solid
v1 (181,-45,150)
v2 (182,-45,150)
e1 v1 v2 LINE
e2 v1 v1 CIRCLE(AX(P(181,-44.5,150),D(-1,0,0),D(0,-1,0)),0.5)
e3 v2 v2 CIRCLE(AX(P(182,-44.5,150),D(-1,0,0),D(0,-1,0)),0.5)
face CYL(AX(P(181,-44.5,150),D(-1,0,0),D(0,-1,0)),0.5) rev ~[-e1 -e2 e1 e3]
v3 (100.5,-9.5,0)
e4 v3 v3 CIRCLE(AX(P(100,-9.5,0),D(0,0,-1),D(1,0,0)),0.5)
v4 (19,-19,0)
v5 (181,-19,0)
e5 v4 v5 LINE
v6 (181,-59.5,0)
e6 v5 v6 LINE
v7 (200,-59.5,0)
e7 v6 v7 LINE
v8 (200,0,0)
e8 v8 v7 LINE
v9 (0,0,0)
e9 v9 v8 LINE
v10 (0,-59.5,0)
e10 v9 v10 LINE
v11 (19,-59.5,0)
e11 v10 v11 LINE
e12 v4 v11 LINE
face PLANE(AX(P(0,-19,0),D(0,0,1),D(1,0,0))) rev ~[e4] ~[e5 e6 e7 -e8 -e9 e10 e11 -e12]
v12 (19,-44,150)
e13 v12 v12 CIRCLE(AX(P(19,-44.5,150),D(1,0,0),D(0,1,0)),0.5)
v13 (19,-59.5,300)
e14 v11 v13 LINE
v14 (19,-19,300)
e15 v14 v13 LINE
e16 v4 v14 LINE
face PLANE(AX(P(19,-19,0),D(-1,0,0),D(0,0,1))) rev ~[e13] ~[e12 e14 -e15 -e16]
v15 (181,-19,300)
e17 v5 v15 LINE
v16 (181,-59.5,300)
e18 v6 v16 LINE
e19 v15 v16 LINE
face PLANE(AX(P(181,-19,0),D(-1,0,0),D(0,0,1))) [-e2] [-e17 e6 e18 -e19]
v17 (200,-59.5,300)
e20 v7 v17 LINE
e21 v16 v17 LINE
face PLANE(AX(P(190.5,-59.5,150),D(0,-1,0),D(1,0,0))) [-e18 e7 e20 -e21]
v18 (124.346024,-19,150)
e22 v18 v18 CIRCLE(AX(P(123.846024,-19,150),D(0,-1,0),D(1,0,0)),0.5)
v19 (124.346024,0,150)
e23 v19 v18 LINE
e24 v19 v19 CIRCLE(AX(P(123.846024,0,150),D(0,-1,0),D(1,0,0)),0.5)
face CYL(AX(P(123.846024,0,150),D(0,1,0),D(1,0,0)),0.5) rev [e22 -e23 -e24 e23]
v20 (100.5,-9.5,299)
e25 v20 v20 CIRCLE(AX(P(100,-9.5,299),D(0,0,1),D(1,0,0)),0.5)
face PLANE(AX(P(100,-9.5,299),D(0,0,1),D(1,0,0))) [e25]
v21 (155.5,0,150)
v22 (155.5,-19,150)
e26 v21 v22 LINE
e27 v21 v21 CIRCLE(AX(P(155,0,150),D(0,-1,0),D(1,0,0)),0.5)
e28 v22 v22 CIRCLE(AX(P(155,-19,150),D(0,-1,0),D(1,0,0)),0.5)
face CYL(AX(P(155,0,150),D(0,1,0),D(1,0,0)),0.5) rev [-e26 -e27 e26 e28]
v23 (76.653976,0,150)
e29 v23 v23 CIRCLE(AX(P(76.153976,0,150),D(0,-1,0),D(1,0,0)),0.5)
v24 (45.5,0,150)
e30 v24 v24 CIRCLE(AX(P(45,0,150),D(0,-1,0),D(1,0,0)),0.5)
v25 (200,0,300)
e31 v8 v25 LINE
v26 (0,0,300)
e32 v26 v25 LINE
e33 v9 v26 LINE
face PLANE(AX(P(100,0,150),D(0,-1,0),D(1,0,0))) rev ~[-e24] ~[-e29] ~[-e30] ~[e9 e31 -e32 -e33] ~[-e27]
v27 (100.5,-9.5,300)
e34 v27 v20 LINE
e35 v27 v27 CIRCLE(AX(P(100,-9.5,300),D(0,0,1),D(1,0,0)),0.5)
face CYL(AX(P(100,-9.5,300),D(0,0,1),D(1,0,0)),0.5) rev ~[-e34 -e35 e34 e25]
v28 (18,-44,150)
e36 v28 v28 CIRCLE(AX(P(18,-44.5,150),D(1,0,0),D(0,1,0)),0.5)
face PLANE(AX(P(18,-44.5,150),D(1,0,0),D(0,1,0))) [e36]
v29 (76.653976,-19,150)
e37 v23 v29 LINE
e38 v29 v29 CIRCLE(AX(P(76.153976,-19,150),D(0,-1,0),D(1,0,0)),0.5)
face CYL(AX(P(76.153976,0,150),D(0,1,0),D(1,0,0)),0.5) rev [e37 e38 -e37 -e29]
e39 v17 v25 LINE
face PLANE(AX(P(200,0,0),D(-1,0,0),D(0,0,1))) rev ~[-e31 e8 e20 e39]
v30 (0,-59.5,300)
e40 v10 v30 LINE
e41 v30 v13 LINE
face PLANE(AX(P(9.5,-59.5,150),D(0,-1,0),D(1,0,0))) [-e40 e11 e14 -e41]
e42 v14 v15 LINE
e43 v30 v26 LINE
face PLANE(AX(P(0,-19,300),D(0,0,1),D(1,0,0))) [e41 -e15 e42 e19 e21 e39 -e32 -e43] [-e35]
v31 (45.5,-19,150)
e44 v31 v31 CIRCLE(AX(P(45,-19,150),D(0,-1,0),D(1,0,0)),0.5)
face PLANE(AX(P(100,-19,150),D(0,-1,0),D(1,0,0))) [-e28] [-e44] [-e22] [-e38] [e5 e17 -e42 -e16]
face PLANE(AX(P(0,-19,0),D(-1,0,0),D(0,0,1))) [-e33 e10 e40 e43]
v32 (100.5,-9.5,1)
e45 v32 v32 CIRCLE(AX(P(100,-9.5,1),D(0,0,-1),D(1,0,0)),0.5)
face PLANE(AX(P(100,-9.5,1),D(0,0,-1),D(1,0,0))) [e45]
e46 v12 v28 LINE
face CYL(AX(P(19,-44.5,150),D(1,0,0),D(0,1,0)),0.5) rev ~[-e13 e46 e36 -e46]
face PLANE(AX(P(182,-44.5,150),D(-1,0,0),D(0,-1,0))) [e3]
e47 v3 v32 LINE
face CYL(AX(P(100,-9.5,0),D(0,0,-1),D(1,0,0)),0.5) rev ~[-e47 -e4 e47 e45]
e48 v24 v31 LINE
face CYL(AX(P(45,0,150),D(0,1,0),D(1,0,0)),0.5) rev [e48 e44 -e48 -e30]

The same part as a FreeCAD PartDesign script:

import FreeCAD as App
import Part
import Sketcher

V = App.Vector
Q = App.Units.Quantity


def add_polygon(sketch, points):
    """Adds a closed chain of lines whose ends are joined by coincident constraints."""
    first, n = sketch.GeometryCount, len(points)
    for a, b in zip(points, points[1:] + points[:1]):
        sketch.addGeometry(Part.LineSegment(App.Vector(*a, 0), App.Vector(*b, 0)), False)
    for i in range(n):
        sketch.addConstraint(Sketcher.Constraint("Coincident", first + i, 2, first + (i + 1) % n, 1))

doc = App.newDocument("Part")
body = doc.addObject("PartDesign::Body", "Body")

sketch1 = body.newObject("Sketcher::SketchObject", "Sketch")
sketch1.AttachmentSupport = (doc.getObject("XZ_Plane"), [""])
sketch1.MapMode = "FlatFace"
add_polygon(sketch1, [(0, 300), (0, 0), (200, 0), (200, 300)])
sketch1.addGeometry(Part.Circle(V(45, 150, 0), V(0, 0, 1), 0.5), False)
sketch1.addGeometry(Part.Circle(V(76.153976, 150, 0), V(0, 0, 1), 0.5), False)
sketch1.addGeometry(Part.Circle(V(123.846024, 150, 0), V(0, 0, 1), 0.5), False)
sketch1.addGeometry(Part.Circle(V(155, 150, 0), V(0, 0, 1), 0.5), False)
sketch1.addConstraint([
    Sketcher.Constraint("Vertical", 0),
    Sketcher.Constraint("Horizontal", 1),
    Sketcher.Constraint("Vertical", 2),
    Sketcher.Constraint("Horizontal", 3),
    Sketcher.Constraint("Coincident", 0, 2, -1, 1),
    Sketcher.Constraint("Equal", 4, 5),
    Sketcher.Constraint("Equal", 5, 6),
    Sketcher.Constraint("Equal", 6, 7),
    Sketcher.Constraint("Horizontal", 4, 3, 5, 3),
    Sketcher.Constraint("Horizontal", 5, 3, 6, 3),
    Sketcher.Constraint("Horizontal", 6, 3, 7, 3),
    Sketcher.Constraint("Diameter", 4, Q("1 mm")),
    Sketcher.Constraint("DistanceX", 1, 1, 1, 2, Q("200 mm")),
    Sketcher.Constraint("DistanceY", 0, 2, 0, 1, Q("300 mm")),
    Sketcher.Constraint("DistanceX", -1, 1, 4, 3, Q("45 mm")),
    Sketcher.Constraint("DistanceY", -1, 1, 4, 3, Q("150 mm")),
    Sketcher.Constraint("DistanceX", -1, 1, 7, 3, Q("155 mm")),
    Sketcher.Constraint("DistanceX", -1, 1, 5, 3, Q("76.153976 mm")),
    Sketcher.Constraint("DistanceX", -1, 1, 6, 3, Q("123.846024 mm")),
])
pad1 = body.newObject("PartDesign::Pad", "Pad")
pad1.Profile = sketch1
pad1.Length = 19

sketch2 = body.newObject("Sketcher::SketchObject", "Sketch001")
sketch2.AttachmentSupport = (doc.getObject("XZ_Plane"), [""])
sketch2.MapMode = "FlatFace"
sketch2.AttachmentOffset = App.Placement(V(0, 0, 19), App.Rotation())
add_polygon(sketch2, [(0, 300), (0, 0), (19, 0), (19, 300)])
add_polygon(sketch2, [(181, 300), (181, 0), (200, 0), (200, 300)])
sketch2.addConstraint([
    Sketcher.Constraint("Vertical", 0),
    Sketcher.Constraint("Horizontal", 1),
    Sketcher.Constraint("Vertical", 2),
    Sketcher.Constraint("Horizontal", 3),
    Sketcher.Constraint("Vertical", 4),
    Sketcher.Constraint("Horizontal", 5),
    Sketcher.Constraint("Vertical", 6),
    Sketcher.Constraint("Horizontal", 7),
    Sketcher.Constraint("Coincident", 0, 2, -1, 1),
    Sketcher.Constraint("PointOnObject", 4, 2, -1),
    Sketcher.Constraint("Horizontal", 3, 2, 6, 2),
    Sketcher.Constraint("Equal", 3, 5),
    Sketcher.Constraint("DistanceX", 1, 1, 1, 2, Q("19 mm")),
    Sketcher.Constraint("DistanceY", 0, 2, 0, 1, Q("300 mm")),
    Sketcher.Constraint("DistanceX", -1, 1, 4, 2, Q("181 mm")),
])
pad2 = body.newObject("PartDesign::Pad", "Pad001")
pad2.Profile = sketch2
pad2.Length = 40.5

sketch3 = body.newObject("Sketcher::SketchObject", "Sketch002")
sketch3.AttachmentSupport = (doc.getObject("YZ_Plane"), [""])
sketch3.MapMode = "FlatFace"
sketch3.AttachmentOffset = App.Placement(V(0, 0, 19), App.Rotation())
sketch3.addGeometry(Part.Circle(V(-44.5, 150, 0), V(0, 0, 1), 0.5), False)
sketch3.addConstraint([
    Sketcher.Constraint("Diameter", 0, Q("1 mm")),
    Sketcher.Constraint("DistanceY", -1, 1, 0, 3, Q("150 mm")),
    Sketcher.Constraint("DistanceX", 0, 3, -1, 1, Q("44.5 mm")),
])
pocket1 = body.newObject("PartDesign::Pocket", "Pocket")
pocket1.Profile = sketch3
pocket1.Length = 1

sketch4 = body.newObject("Sketcher::SketchObject", "Sketch003")
sketch4.AttachmentSupport = (doc.getObject("YZ_Plane"), [""])
sketch4.MapMode = "FlatFace"
sketch4.AttachmentOffset = App.Placement(V(0, 0, 181), App.Rotation())
sketch4.addGeometry(Part.Circle(V(-44.5, 150, 0), V(0, 0, 1), 0.5), False)
sketch4.addConstraint([
    Sketcher.Constraint("Diameter", 0, Q("1 mm")),
    Sketcher.Constraint("DistanceY", -1, 1, 0, 3, Q("150 mm")),
    Sketcher.Constraint("DistanceX", 0, 3, -1, 1, Q("44.5 mm")),
])
pocket2 = body.newObject("PartDesign::Pocket", "Pocket001")
pocket2.Profile = sketch4
pocket2.Length = 1
pocket2.Reversed = True

sketch5 = body.newObject("Sketcher::SketchObject", "Sketch004")
sketch5.AttachmentSupport = (doc.getObject("XY_Plane"), [""])
sketch5.MapMode = "FlatFace"
sketch5.addGeometry(Part.Circle(V(100, -9.5, 0), V(0, 0, 1), 0.5), False)
sketch5.addConstraint([
    Sketcher.Constraint("Diameter", 0, Q("1 mm")),
    Sketcher.Constraint("DistanceX", -1, 1, 0, 3, Q("100 mm")),
    Sketcher.Constraint("DistanceY", 0, 3, -1, 1, Q("9.5 mm")),
])
pocket3 = body.newObject("PartDesign::Pocket", "Pocket002")
pocket3.Profile = sketch5
pocket3.Length = 1
pocket3.Reversed = True

sketch6 = body.newObject("Sketcher::SketchObject", "Sketch005")
sketch6.AttachmentSupport = (doc.getObject("XY_Plane"), [""])
sketch6.MapMode = "FlatFace"
sketch6.AttachmentOffset = App.Placement(V(0, 0, 300), App.Rotation())
sketch6.addGeometry(Part.Circle(V(100, -9.5, 0), V(0, 0, 1), 0.5), False)
sketch6.addConstraint([
    Sketcher.Constraint("Diameter", 0, Q("1 mm")),
    Sketcher.Constraint("DistanceX", -1, 1, 0, 3, Q("100 mm")),
    Sketcher.Constraint("DistanceY", 0, 3, -1, 1, Q("9.5 mm")),
])
pocket4 = body.newObject("PartDesign::Pocket", "Pocket003")
pocket4.Profile = sketch6
pocket4.Length = 1

doc.recompute()
